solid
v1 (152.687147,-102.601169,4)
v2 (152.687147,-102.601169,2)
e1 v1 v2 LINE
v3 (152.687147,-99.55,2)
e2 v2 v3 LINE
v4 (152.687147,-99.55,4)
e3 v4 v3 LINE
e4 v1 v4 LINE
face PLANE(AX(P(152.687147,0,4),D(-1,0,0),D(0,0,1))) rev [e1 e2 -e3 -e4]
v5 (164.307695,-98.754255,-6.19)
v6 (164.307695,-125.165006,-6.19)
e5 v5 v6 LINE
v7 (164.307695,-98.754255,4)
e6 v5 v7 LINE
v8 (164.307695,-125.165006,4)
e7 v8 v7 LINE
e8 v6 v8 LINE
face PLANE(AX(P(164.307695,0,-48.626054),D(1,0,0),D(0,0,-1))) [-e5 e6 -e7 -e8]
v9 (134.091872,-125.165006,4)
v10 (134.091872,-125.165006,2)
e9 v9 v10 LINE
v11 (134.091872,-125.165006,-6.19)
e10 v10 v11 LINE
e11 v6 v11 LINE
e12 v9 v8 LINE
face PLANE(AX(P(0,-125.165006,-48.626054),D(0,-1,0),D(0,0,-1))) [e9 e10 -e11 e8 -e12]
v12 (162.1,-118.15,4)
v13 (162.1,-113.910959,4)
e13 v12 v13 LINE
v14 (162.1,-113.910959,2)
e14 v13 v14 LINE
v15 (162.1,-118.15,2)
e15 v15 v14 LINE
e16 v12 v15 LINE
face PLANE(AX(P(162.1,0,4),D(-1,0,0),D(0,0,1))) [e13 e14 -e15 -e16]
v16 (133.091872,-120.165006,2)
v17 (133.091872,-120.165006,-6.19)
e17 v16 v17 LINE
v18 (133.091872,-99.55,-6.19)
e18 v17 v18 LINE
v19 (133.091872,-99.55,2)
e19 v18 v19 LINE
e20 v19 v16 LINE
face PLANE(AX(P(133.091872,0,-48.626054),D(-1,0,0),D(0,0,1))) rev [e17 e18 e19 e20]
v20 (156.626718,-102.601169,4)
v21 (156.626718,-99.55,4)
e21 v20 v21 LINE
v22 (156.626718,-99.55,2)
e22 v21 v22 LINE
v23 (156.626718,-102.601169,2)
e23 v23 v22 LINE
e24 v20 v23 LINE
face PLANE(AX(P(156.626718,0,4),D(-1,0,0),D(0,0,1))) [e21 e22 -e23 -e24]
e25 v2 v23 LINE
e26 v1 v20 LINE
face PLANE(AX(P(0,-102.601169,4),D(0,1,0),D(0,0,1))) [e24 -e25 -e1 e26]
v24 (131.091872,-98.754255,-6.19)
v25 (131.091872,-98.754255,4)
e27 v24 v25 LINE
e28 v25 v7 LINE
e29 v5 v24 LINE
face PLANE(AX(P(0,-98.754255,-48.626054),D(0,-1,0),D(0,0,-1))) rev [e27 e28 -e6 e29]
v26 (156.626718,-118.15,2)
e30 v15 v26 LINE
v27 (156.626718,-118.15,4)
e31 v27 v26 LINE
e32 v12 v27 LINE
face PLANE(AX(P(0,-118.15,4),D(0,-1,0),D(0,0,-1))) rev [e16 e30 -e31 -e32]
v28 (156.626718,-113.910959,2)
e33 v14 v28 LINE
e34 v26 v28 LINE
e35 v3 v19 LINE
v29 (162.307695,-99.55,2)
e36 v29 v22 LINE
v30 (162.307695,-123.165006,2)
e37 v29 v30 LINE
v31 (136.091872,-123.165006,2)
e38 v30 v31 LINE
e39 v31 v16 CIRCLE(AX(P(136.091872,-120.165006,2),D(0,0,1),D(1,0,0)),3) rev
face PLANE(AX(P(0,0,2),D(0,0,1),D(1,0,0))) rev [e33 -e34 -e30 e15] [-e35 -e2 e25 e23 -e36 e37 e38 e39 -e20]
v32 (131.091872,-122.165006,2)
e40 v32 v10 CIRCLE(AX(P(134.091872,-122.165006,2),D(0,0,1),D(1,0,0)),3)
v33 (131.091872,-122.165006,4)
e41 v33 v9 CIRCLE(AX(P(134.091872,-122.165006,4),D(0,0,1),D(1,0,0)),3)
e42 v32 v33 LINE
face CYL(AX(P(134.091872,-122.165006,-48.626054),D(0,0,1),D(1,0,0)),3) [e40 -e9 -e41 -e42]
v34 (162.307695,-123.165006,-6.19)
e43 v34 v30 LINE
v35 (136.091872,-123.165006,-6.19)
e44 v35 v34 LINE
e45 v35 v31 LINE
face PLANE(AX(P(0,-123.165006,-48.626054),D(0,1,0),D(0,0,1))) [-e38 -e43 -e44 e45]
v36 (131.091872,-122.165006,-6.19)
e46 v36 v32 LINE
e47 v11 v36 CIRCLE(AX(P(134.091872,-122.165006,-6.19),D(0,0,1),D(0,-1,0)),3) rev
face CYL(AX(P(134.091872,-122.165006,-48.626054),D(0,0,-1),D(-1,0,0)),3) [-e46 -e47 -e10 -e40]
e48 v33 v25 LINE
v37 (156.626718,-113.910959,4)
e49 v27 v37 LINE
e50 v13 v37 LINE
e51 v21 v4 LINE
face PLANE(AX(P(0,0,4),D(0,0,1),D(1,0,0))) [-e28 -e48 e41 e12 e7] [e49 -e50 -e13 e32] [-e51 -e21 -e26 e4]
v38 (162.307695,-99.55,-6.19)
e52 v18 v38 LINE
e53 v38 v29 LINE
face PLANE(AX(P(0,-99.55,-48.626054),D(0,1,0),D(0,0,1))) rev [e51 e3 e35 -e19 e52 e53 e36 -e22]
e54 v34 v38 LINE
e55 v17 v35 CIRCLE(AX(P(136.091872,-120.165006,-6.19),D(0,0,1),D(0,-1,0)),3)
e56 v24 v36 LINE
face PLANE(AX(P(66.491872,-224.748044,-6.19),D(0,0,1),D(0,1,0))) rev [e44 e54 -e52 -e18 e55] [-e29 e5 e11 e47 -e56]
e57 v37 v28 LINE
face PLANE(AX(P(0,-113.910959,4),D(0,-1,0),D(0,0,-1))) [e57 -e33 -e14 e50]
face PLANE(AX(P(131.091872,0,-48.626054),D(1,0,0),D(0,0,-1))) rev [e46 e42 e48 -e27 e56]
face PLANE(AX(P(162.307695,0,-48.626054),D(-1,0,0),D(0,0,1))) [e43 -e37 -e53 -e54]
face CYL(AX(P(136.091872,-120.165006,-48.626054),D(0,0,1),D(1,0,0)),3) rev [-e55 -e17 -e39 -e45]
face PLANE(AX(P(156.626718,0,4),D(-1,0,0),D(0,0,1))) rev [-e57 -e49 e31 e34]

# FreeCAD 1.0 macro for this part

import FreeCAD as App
import Part
import Sketcher

V = App.Vector


def edges_at(feature, points):
    """Names of the edges that pass closest to the given points."""
    edges = feature.Shape.Edges
    near = lambda p: min(range(len(edges)), key=lambda i: edges[i].distToShape(Part.Vertex(*p))[0])
    return sorted({f"Edge{near(p) + 1}" for p in points})


def add_polygon(sketch, points):
    """Adds a closed chain of lines whose ends are joined by coincident constraints."""
    first, n = sketch.GeometryCount, len(points)
    for a, b in zip(points, points[1:] + points[:1]):
        sketch.addGeometry(Part.LineSegment(App.Vector(*a, 0), App.Vector(*b, 0)), False)
    for i in range(n):
        sketch.addConstraint(Sketcher.Constraint("Coincident", first + i, 2, first + (i + 1) % n, 1))

doc = App.newDocument("Part")
body = doc.addObject("PartDesign::Body", "Body")

sketch1 = body.newObject("Sketcher::SketchObject", "Sketch")
sketch1.AttachmentSupport = (doc.getObject("XY_Plane"), [""])
sketch1.MapMode = "FlatFace"
sketch1.AttachmentOffset = App.Placement(V(0, 0, -6.19), App.Rotation())
add_polygon(sketch1, [(131.091872, -125.165006), (164.307695, -125.165006), (164.307695, -98.754255), (131.091872, -98.754255)])
add_polygon(sketch1, [(133.091872, -123.165006), (133.091872, -99.55), (162.307695, -99.55), (162.307695, -123.165006)])
sketch1.addConstraint(Sketcher.Constraint("Horizontal", 0))
sketch1.addConstraint(Sketcher.Constraint("Vertical", 1))
sketch1.addConstraint(Sketcher.Constraint("Horizontal", 2))
sketch1.addConstraint(Sketcher.Constraint("Vertical", 3))
sketch1.addConstraint(Sketcher.Constraint("Vertical", 4))
sketch1.addConstraint(Sketcher.Constraint("Horizontal", 5))
sketch1.addConstraint(Sketcher.Constraint("Vertical", 6))
sketch1.addConstraint(Sketcher.Constraint("Horizontal", 7))
sketch1.addConstraint(Sketcher.Constraint("DistanceX", 2, 2, 4, 2, 2.0))
sketch1.addConstraint(Sketcher.Constraint("DistanceX", 5, 2, 1, 2, 2.0))
sketch1.addConstraint(Sketcher.Constraint("DistanceY", 0, 2, 6, 2, 2.0))
sketch1.addConstraint(Sketcher.Constraint("DistanceY", 4, 2, -1, 1, 99.55))
sketch1.addConstraint(Sketcher.Constraint("DistanceY", 1, 1, 1, 2, 26.410751))
sketch1.addConstraint(Sketcher.Constraint("DistanceX", 0, 1, 0, 2, 33.215823))
sketch1.addConstraint(Sketcher.Constraint("DistanceY", 4, 1, 4, 2, 23.615006))
sketch1.addConstraint(Sketcher.Constraint("DistanceX", -1, 1, 2, 2, 131.091872))
pad1 = body.newObject("PartDesign::Pad", "Pad")
pad1.Profile = sketch1
pad1.Length = 8.19
doc.recompute()

fillet = body.newObject("PartDesign::Fillet", "Fillet")
fillet.Base = (pad1, edges_at(pad1, [(133.092, -123.165, -2.095), (131.092, -125.165, -2.095)]))
fillet.Radius = 3

sketch2 = body.newObject("Sketcher::SketchObject", "Sketch001")
sketch2.AttachmentSupport = (doc.getObject("XY_Plane"), [""])
sketch2.MapMode = "FlatFace"
sketch2.AttachmentOffset = App.Placement(V(0, 0, 2), App.Rotation())
add_polygon(sketch2, [(131.091872, -125.165006), (164.307695, -125.165006), (164.307695, -98.754255), (131.091872, -98.754255)])
add_polygon(sketch2, [(152.687147, -99.55), (156.626718, -99.55), (156.626718, -102.601169), (152.687147, -102.601169)])
add_polygon(sketch2, [(162.1, -113.910959), (162.1, -118.15), (156.626718, -118.15), (156.626718, -113.910959)])
sketch2.addConstraint(Sketcher.Constraint("Horizontal", 0))
sketch2.addConstraint(Sketcher.Constraint("Vertical", 1))
sketch2.addConstraint(Sketcher.Constraint("Horizontal", 2))
sketch2.addConstraint(Sketcher.Constraint("Vertical", 3))
sketch2.addConstraint(Sketcher.Constraint("Horizontal", 4))
sketch2.addConstraint(Sketcher.Constraint("Vertical", 5))
sketch2.addConstraint(Sketcher.Constraint("Horizontal", 6))
sketch2.addConstraint(Sketcher.Constraint("Vertical", 7))
sketch2.addConstraint(Sketcher.Constraint("Vertical", 8))
sketch2.addConstraint(Sketcher.Constraint("Horizontal", 9))
sketch2.addConstraint(Sketcher.Constraint("Vertical", 10))
sketch2.addConstraint(Sketcher.Constraint("Horizontal", 11))
sketch2.addConstraint(Sketcher.Constraint("Vertical", 5, 2, 9, 2))
sketch2.addConstraint(Sketcher.Constraint("DistanceX", -1, 1, 8, 2, 162.1))
sketch2.addConstraint(Sketcher.Constraint("DistanceY", 8, 2, 4, 2, 18.6))
sketch2.addConstraint(Sketcher.Constraint("DistanceY", 4, 2, -1, 1, 99.55))
sketch2.addConstraint(Sketcher.Constraint("DistanceX", 4, 1, 4, 2, 3.939571))
sketch2.addConstraint(Sketcher.Constraint("DistanceY", 1, 1, 1, 2, 26.410751))
sketch2.addConstraint(Sketcher.Constraint("DistanceY", 5, 2, 5, 1, 3.051169))
sketch2.addConstraint(Sketcher.Constraint("DistanceY", 8, 2, 8, 1, 4.239041))
sketch2.addConstraint(Sketcher.Constraint("DistanceX", 0, 1, 0, 2, 33.215823))
sketch2.addConstraint(Sketcher.Constraint("DistanceX", 9, 2, 9, 1, 5.473282))
sketch2.addConstraint(Sketcher.Constraint("DistanceX", -1, 1, 2, 2, 131.091872))
sketch2.addConstraint(Sketcher.Constraint("DistanceY", 0, 2, -1, 1, 125.165006))
pad2 = body.newObject("PartDesign::Pad", "Pad001")
pad2.Profile = sketch2
pad2.Length = 2
doc.recompute()

fillet2 = body.newObject("PartDesign::Fillet", "Fillet001")
fillet2.Base = (pad2, edges_at(pad2, [(131.092, -125.165, 3)]))
fillet2.Radius = 3

doc.recompute()
